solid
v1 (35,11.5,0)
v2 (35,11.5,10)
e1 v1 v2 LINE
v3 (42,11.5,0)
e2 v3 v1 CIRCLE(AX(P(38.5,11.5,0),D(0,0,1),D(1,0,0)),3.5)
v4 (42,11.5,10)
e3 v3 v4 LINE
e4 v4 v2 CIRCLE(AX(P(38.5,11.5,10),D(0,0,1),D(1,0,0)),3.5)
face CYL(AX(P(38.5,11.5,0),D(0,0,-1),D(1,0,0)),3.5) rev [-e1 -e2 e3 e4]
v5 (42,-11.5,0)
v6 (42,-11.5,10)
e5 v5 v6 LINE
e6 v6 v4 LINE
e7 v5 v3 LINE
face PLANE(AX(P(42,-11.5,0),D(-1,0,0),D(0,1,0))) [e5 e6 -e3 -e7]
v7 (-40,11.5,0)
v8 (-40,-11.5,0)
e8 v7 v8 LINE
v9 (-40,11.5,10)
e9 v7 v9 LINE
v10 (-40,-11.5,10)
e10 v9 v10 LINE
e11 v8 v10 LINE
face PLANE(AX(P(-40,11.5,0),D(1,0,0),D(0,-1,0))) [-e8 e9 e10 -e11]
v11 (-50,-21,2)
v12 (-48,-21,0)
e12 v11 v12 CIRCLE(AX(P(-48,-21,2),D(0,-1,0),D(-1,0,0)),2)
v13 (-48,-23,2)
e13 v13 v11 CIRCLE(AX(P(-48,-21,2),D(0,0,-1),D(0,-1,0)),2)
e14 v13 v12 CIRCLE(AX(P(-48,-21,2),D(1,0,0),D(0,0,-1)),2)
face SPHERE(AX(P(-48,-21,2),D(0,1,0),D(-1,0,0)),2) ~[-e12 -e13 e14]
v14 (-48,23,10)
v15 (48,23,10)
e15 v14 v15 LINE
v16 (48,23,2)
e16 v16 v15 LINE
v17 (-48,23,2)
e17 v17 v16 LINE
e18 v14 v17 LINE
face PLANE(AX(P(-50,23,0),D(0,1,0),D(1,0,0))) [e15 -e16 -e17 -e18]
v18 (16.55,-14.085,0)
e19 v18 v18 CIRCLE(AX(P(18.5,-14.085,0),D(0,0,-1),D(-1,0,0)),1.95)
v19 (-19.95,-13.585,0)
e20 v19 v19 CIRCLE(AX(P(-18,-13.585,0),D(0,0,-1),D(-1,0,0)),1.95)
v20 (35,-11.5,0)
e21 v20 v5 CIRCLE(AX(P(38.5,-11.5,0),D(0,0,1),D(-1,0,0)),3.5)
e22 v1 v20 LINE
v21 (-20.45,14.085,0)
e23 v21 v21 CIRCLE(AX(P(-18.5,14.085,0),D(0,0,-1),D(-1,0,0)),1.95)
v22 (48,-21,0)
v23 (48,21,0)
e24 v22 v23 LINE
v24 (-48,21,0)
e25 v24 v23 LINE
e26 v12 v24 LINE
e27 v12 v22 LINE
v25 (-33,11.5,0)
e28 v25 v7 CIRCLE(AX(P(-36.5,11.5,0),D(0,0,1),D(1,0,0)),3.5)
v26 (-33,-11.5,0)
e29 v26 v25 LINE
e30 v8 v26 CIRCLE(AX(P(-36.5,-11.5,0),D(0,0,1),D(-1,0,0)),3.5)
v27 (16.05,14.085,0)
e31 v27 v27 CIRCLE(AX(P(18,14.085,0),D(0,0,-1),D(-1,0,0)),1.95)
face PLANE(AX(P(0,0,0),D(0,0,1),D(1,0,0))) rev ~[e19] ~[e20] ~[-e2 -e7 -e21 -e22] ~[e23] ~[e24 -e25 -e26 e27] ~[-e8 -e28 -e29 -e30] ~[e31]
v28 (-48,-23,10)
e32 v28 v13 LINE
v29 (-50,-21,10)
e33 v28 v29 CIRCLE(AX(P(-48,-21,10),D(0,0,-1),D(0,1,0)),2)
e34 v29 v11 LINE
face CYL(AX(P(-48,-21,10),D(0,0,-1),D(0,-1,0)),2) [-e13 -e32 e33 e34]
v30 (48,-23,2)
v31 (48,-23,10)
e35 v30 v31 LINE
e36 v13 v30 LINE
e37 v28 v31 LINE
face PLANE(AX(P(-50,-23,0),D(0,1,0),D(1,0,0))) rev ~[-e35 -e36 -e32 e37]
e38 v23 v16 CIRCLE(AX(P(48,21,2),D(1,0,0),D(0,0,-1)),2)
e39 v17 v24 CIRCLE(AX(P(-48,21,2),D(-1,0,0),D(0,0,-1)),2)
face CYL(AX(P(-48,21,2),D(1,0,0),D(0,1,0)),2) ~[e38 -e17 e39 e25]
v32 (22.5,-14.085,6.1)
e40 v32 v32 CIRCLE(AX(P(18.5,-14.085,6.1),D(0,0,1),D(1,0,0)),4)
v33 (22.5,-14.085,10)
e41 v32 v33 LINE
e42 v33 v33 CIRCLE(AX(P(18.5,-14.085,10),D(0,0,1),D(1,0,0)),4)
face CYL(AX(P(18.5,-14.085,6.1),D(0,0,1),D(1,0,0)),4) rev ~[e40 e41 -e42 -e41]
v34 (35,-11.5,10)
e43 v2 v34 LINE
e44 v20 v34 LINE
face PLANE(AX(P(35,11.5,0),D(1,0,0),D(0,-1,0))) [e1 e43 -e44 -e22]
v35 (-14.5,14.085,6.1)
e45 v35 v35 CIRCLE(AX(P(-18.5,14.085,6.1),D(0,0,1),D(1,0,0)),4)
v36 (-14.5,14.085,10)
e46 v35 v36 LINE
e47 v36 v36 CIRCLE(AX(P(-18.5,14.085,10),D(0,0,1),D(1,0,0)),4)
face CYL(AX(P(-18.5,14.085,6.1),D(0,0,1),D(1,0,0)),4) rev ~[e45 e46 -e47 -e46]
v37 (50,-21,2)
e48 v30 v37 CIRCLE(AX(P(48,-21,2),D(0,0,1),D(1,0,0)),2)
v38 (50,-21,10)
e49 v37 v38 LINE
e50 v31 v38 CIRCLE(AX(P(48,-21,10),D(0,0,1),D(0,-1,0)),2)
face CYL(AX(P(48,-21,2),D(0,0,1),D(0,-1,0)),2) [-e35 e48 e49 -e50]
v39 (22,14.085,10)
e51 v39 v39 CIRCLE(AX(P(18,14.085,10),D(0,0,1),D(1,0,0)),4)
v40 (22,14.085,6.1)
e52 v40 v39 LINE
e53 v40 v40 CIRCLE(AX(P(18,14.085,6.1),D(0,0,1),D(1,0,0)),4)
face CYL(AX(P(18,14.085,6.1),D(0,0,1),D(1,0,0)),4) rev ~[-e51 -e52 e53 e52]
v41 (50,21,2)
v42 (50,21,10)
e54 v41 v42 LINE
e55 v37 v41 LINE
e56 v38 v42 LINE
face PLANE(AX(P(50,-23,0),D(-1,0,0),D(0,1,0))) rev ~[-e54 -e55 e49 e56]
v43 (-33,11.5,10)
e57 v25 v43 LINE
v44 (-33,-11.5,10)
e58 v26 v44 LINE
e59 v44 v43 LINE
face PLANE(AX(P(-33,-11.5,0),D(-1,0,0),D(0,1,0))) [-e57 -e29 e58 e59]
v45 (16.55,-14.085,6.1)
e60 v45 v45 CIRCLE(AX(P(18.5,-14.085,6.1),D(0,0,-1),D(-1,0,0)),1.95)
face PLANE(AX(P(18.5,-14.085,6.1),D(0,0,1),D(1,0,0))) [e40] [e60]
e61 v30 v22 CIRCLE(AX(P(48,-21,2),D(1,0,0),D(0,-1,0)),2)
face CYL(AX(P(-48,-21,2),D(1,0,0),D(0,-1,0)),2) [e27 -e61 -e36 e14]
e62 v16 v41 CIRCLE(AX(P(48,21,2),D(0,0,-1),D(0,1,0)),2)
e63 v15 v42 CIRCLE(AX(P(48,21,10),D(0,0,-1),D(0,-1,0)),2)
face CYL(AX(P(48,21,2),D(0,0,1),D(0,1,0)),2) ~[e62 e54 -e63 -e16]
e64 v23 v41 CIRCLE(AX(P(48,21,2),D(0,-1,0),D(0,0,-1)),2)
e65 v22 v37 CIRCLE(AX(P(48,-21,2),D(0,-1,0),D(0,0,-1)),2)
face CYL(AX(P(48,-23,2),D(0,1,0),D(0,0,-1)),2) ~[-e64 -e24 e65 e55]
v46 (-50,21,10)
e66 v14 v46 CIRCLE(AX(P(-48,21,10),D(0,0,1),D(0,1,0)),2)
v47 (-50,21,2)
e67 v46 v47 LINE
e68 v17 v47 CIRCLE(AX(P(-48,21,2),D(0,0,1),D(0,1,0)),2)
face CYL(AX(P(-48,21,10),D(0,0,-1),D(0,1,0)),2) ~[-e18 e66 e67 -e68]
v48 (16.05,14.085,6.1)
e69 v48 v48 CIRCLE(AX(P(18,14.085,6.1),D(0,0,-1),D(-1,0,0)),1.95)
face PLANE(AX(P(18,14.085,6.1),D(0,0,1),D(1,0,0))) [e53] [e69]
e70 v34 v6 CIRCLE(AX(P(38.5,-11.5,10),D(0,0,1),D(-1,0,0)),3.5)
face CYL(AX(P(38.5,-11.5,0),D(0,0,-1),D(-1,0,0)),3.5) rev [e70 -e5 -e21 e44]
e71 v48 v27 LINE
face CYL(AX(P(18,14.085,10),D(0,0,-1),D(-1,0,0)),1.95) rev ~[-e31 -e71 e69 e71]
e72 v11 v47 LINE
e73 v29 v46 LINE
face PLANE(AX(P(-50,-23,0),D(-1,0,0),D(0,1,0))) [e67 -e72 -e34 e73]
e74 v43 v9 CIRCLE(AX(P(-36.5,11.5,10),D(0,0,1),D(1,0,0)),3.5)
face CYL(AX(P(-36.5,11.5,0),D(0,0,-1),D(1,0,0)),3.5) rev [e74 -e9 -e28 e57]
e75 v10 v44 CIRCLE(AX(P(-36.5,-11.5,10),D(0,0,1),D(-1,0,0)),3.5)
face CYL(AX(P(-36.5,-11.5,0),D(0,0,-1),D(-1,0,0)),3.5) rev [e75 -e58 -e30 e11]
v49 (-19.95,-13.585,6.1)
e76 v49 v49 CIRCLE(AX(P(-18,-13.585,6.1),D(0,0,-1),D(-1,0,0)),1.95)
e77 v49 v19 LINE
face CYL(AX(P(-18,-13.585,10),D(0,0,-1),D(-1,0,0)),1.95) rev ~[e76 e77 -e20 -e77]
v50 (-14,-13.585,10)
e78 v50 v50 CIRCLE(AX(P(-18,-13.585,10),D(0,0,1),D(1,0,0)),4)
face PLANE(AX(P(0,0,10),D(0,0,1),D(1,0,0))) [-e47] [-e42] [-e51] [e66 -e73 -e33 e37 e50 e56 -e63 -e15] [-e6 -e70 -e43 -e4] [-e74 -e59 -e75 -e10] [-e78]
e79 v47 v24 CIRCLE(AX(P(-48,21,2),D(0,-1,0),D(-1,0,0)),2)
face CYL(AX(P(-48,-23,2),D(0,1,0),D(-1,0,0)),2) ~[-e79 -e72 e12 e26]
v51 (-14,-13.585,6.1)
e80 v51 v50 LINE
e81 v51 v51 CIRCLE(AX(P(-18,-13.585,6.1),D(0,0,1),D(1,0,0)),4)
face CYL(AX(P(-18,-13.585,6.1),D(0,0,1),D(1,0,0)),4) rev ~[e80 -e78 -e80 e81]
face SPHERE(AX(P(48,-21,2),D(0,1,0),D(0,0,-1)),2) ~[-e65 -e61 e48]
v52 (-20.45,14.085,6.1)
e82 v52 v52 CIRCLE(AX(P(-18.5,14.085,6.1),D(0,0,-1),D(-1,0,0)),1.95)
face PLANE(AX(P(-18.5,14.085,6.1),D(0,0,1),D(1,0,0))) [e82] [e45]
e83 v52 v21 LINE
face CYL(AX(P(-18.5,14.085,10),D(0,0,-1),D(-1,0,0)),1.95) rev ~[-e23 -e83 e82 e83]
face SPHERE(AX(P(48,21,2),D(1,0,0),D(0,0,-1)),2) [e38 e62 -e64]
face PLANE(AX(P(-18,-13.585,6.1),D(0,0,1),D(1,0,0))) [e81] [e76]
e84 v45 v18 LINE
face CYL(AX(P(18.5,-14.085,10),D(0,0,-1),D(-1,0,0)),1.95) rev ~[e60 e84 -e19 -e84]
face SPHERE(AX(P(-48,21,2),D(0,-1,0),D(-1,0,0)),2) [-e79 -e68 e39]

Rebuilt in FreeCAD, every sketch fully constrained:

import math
import FreeCAD as App
import Part
import Sketcher
from FreeCAD import Vector
Q = App.Units.Quantity


def edges_at(feature, points):
    """Names of the edges that pass closest to the given points."""
    edges = feature.Shape.Edges
    near = lambda p: min(range(len(edges)), key=lambda i: edges[i].distToShape(Part.Vertex(*p))[0])
    return sorted({f"Edge{near(p) + 1}" for p in points})


def add_polygon(sketch, points):
    """Adds a closed chain of lines whose ends are joined by coincident constraints."""
    first, n = sketch.GeometryCount, len(points)
    for a, b in zip(points, points[1:] + points[:1]):
        sketch.addGeometry(Part.LineSegment(App.Vector(*a, 0), App.Vector(*b, 0)), False)
    for i in range(n):
        sketch.addConstraint(Sketcher.Constraint("Coincident", first + i, 2, first + (i + 1) % n, 1))

doc = App.newDocument("Part")
body = doc.addObject("PartDesign::Body", "Body")

# Sketch on XY plane
sketch1 = body.newObject("Sketcher::SketchObject", "Sketch")
sketch1.AttachmentSupport = (doc.getObject("XY_Plane"), [""])
sketch1.MapMode = "FlatFace"
add_polygon(sketch1, [(-50, 23), (-50, -23), (50, -23), (50, 23)])  # lines 0-3
sketch1.addGeometry(Part.ArcOfCircle(Part.Circle(Vector(-36.5, 11.5, 0), Vector(0, 0, 1), 3.5), math.radians(0), math.radians(180)), False)  # 4
sketch1.addGeometry(Part.LineSegment(Vector(-33, 11.5, 0), Vector(-33, -11.5, 0)), False)  # 5
sketch1.addGeometry(Part.ArcOfCircle(Part.Circle(Vector(-36.5, -11.5, 0), Vector(0, 0, 1), 3.5), math.radians(180), math.radians(360)), False)  # 6
sketch1.addGeometry(Part.LineSegment(Vector(-40, -11.5, 0), Vector(-40, 11.5, 0)), False)  # 7
sketch1.addGeometry(Part.ArcOfCircle(Part.Circle(Vector(38.5, 11.5, 0), Vector(0, 0, 1), 3.5), math.radians(0), math.radians(180)), False)  # 8
sketch1.addGeometry(Part.LineSegment(Vector(42, 11.5, 0), Vector(42, -11.5, 0)), False)  # 9
sketch1.addGeometry(Part.ArcOfCircle(Part.Circle(Vector(38.5, -11.5, 0), Vector(0, 0, 1), 3.5), math.radians(180), math.radians(360)), False)  # 10
sketch1.addGeometry(Part.LineSegment(Vector(35, -11.5, 0), Vector(35, 11.5, 0)), False)  # 11
sketch1.addConstraint(Sketcher.Constraint("Tangent", 4, 1, 5, 1))
sketch1.addConstraint(Sketcher.Constraint("Tangent", 5, 2, 6, 2))
sketch1.addConstraint(Sketcher.Constraint("Tangent", 6, 1, 7, 1))
sketch1.addConstraint(Sketcher.Constraint("Tangent", 7, 2, 4, 2))
sketch1.addConstraint(Sketcher.Constraint("Tangent", 8, 1, 9, 1))
sketch1.addConstraint(Sketcher.Constraint("Tangent", 9, 2, 10, 2))
sketch1.addConstraint(Sketcher.Constraint("Tangent", 10, 1, 11, 1))
sketch1.addConstraint(Sketcher.Constraint("Tangent", 11, 2, 8, 2))
sketch1.addConstraint(Sketcher.Constraint("Vertical", 0))
sketch1.addConstraint(Sketcher.Constraint("Horizontal", 1))
sketch1.addConstraint(Sketcher.Constraint("Vertical", 2))
sketch1.addConstraint(Sketcher.Constraint("Horizontal", 3))
sketch1.addConstraint(Sketcher.Constraint("Vertical", 5))
sketch1.addConstraint(Sketcher.Constraint("Vertical", 7))
sketch1.addConstraint(Sketcher.Constraint("Vertical", 9))
sketch1.addConstraint(Sketcher.Constraint("Vertical", 11))
sketch1.addConstraint(Sketcher.Constraint("Equal", 6, 8))
sketch1.addConstraint(Sketcher.Constraint("Symmetric", 0, 2, 2, 2, -1, 1))
sketch1.addConstraint(Sketcher.Constraint("Horizontal", 4, 3, 8, 3))
sketch1.addConstraint(Sketcher.Constraint("Horizontal", 6, 3, 10, 3))
sketch1.addConstraint(Sketcher.Constraint("Radius", 4, Q("3.5 mm")))
sketch1.addConstraint(Sketcher.Constraint("DistanceX", 1, 1, 1, 2, Q("100 mm")))
sketch1.addConstraint(Sketcher.Constraint("DistanceY", 0, 2, 0, 1, Q("46 mm")))
sketch1.addConstraint(Sketcher.Constraint("DistanceY", 5, 2, 5, 1, Q("23 mm")))
sketch1.addConstraint(Sketcher.Constraint("DistanceX", 4, 1, -1, 1, Q("33 mm")))
sketch1.addConstraint(Sketcher.Constraint("DistanceX", -1, 1, 8, 1, Q("42 mm")))
sketch1.addConstraint(Sketcher.Constraint("DistanceY", -1, 1, 4, 3, Q("11.5 mm")))
pad1 = body.newObject("PartDesign::Pad", "Pad")
pad1.Profile = sketch1
pad1.Length = 10

# Sketch on XY plane
sketch2 = body.newObject("Sketcher::SketchObject", "Sketch001")
sketch2.AttachmentSupport = (doc.getObject("XY_Plane"), [""])
sketch2.MapMode = "FlatFace"
sketch2.AttachmentOffset = App.Placement(Vector(0, 0, 10), App.Rotation())
sketch2.addGeometry(Part.Circle(Vector(-18.5, 14.085, 0), Vector(0, 0, 1), 1.95), False)
sketch2.addGeometry(Part.Circle(Vector(18, 14.085, 0), Vector(0, 0, 1), 1.95), False)
sketch2.addGeometry(Part.Circle(Vector(-18, -13.585, 0), Vector(0, 0, 1), 1.95), False)
sketch2.addGeometry(Part.Circle(Vector(18.5, -14.085, 0), Vector(0, 0, 1), 1.95), False)
sketch2.addConstraint(Sketcher.Constraint("Equal", 0, 1))
sketch2.addConstraint(Sketcher.Constraint("Equal", 1, 2))
sketch2.addConstraint(Sketcher.Constraint("Equal", 2, 3))
sketch2.addConstraint(Sketcher.Constraint("Symmetric", 0, 3, 3, 3, -1, 1))
sketch2.addConstraint(Sketcher.Constraint("Horizontal", 0, 3, 1, 3))
sketch2.addConstraint(Sketcher.Constraint("Diameter", 0, Q("3.9 mm")))
sketch2.addConstraint(Sketcher.Constraint("DistanceX", -1, 1, 1, 3, Q("18 mm")))
sketch2.addConstraint(Sketcher.Constraint("DistanceX", 2, 3, -1, 1, Q("18 mm")))
sketch2.addConstraint(Sketcher.Constraint("DistanceX", 0, 3, 3, 3, Q("37 mm")))
sketch2.addConstraint(Sketcher.Constraint("DistanceY", 3, 3, 2, 3, Q("0.5 mm")))
sketch2.addConstraint(Sketcher.Constraint("DistanceY", 2, 3, 0, 3, Q("27.67 mm")))
doc.recompute()
hole = body.newObject("PartDesign::Hole", "Hole")
hole.Profile = sketch2
hole.ThreadType = "None"
hole.Diameter = 3.9
hole.DepthType = "ThroughAll"
hole.HoleCutType = "Counterbore"
hole.HoleCutDiameter = 8
hole.HoleCutDepth = 3.9
doc.recompute()

fillet = body.newObject("PartDesign::Fillet", "Fillet")
fillet.Base = (hole, edges_at(hole, [(-50, 0, 0)]))
fillet.Radius = 2
doc.recompute()

fillet2 = body.newObject("PartDesign::Fillet", "Fillet001")
fillet2.Base = (fillet, edges_at(fillet, [(1, 23, 0)]))
fillet2.Radius = 2
doc.recompute()

fillet3 = body.newObject("PartDesign::Fillet", "Fillet002")
fillet3.Base = (fillet2, edges_at(fillet2, [(50, -1, 0)]))
fillet3.Radius = 2
doc.recompute()

fillet4 = body.newObject("PartDesign::Fillet", "Fillet003")
fillet4.Base = (fillet3, edges_at(fillet3, [(0, -23, 0)]))
fillet4.Radius = 2

doc.recompute()
